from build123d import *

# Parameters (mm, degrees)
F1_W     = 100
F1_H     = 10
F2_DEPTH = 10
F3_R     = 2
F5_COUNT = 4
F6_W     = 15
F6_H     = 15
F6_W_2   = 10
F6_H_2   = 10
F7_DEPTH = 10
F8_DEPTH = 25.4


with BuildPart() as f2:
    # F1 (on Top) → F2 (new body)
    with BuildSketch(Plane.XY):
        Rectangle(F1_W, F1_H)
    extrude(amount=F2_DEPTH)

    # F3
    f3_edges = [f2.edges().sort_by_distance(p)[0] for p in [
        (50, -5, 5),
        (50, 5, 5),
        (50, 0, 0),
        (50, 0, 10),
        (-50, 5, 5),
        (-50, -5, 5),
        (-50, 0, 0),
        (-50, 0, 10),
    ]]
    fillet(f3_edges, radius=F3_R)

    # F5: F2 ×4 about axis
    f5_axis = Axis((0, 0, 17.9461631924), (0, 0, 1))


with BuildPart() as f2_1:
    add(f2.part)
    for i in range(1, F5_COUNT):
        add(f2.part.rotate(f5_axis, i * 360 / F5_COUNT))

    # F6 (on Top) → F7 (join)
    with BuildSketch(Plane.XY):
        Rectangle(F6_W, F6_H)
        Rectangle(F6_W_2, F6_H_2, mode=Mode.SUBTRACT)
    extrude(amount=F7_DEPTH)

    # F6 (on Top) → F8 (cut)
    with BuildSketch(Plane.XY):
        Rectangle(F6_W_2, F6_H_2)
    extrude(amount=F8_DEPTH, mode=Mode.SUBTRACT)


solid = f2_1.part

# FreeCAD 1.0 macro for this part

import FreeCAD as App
import Part
import Sketcher
Q = App.Units.Quantity


def edges_at(feature, points):
    """Names of the edges that pass closest to the given points."""
    edges = feature.Shape.Edges
    near = lambda p: min(range(len(edges)), key=lambda i: edges[i].distToShape(Part.Vertex(*p))[0])
    return sorted({f"Edge{near(p) + 1}" for p in points})


def add_polygon(sketch, points):
    """Adds a closed chain of lines whose ends are joined by coincident constraints."""
    first, n = sketch.GeometryCount, len(points)
    for a, b in zip(points, points[1:] + points[:1]):
        sketch.addGeometry(Part.LineSegment(App.Vector(*a, 0), App.Vector(*b, 0)), False)
    for i in range(n):
        sketch.addConstraint(Sketcher.Constraint("Coincident", first + i, 2, first + (i + 1) % n, 1))

doc = App.newDocument("Part")
body = doc.addObject("PartDesign::Body", "Body")

# Sketch on XY plane
sketch1 = body.newObject("Sketcher::SketchObject", "Sketch")
sketch1.AttachmentSupport = (doc.getObject("XY_Plane"), [""])
sketch1.MapMode = "FlatFace"
add_polygon(sketch1, [(-50, 5), (-50, -5), (50, -5), (50, 5)])  # lines 0-3
sketch1.addConstraint(Sketcher.Constraint("Vertical", 0))
sketch1.addConstraint(Sketcher.Constraint("Horizontal", 1))
sketch1.addConstraint(Sketcher.Constraint("Vertical", 2))
sketch1.addConstraint(Sketcher.Constraint("Horizontal", 3))
sketch1.addConstraint(Sketcher.Constraint("Symmetric", 0, 2, 2, 2, -1, 1))
sketch1.addConstraint(Sketcher.Constraint("DistanceX", 1, 1, 1, 2, Q("100 mm")))
sketch1.addConstraint(Sketcher.Constraint("DistanceY", 0, 2, 0, 1, Q("10 mm")))
pad1 = body.newObject("PartDesign::Pad", "Pad")
pad1.Profile = sketch1
pad1.Length = 10
doc.recompute()

fillet = body.newObject("PartDesign::Fillet", "Fillet")
fillet.Base = (pad1, edges_at(pad1, [
    (50, -5, 5),
    (50, 5, 5),
    (50, 0, 0),
    (50, 0, 10),
    (-50, 5, 5),
    (-50, -5, 5),
    (-50, 0, 0),
    (-50, 0, 10),
]))
fillet.Radius = 2
body2 = doc.addObject("PartDesign::Body", "Body001")
doc.recompute()

body2.BaseFeature = body
doc.recompute()

body3 = doc.addObject("PartDesign::Body", "Body002")
body3.BaseFeature = body
body3.Placement = App.Placement(App.Vector(0, 0, 0), App.Rotation(App.Vector(0, 0, 1), 90))
boolean = body2.newObject("PartDesign::Boolean", "Boolean")
boolean.Type = "Fuse"
boolean.addObjects([body3])
doc.recompute()

body4 = doc.addObject("PartDesign::Body", "Body003")
body4.BaseFeature = body
body4.Placement = App.Placement(App.Vector(0, 0, 0), App.Rotation(App.Vector(0, 0, 1), 180))
boolean2 = body2.newObject("PartDesign::Boolean", "Boolean001")
boolean2.Type = "Fuse"
boolean2.addObjects([body4])
doc.recompute()

body.Placement = App.Placement(App.Vector(0, 0, 0), App.Rotation(App.Vector(0, 0, 1), 270))
boolean3 = body2.newObject("PartDesign::Boolean", "Boolean002")
boolean3.Type = "Fuse"
boolean3.addObjects([body])

# Sketch on XY plane
sketch2 = body2.newObject("Sketcher::SketchObject", "Sketch001")
sketch2.AttachmentSupport = (doc.getObject("XY_Plane001"), [""])
sketch2.MapMode = "FlatFace"
add_polygon(sketch2, [(-8, 8), (-8, -8), (8, -8), (8, 8)])  # lines 0-3
add_polygon(sketch2, [(5, -5), (-5, -5), (-5, 5), (5, 5)])  # lines 4-7
sketch2.addConstraint(Sketcher.Constraint("Vertical", 0))
sketch2.addConstraint(Sketcher.Constraint("Horizontal", 1))
sketch2.addConstraint(Sketcher.Constraint("Vertical", 2))
sketch2.addConstraint(Sketcher.Constraint("Horizontal", 3))
sketch2.addConstraint(Sketcher.Constraint("Horizontal", 4))
sketch2.addConstraint(Sketcher.Constraint("Vertical", 5))
sketch2.addConstraint(Sketcher.Constraint("Horizontal", 6))
sketch2.addConstraint(Sketcher.Constraint("Vertical", 7))
sketch2.addConstraint(Sketcher.Constraint("Symmetric", 0, 2, 2, 2, -1, 1))
sketch2.addConstraint(Sketcher.Constraint("Symmetric", 4, 2, 6, 2, -1, 1))
sketch2.addConstraint(Sketcher.Constraint("Equal", 3, 0))
sketch2.addConstraint(Sketcher.Constraint("Equal", 6, 5))
sketch2.addConstraint(Sketcher.Constraint("DistanceX", 1, 1, 1, 2, Q("15 mm")))
sketch2.addConstraint(Sketcher.Constraint("DistanceX", 4, 2, 4, 1, Q("10 mm")))
pad2 = body2.newObject("PartDesign::Pad", "Pad001")
pad2.Profile = sketch2
pad2.Length = 10

# Sketch on XY plane
sketch3 = body2.newObject("Sketcher::SketchObject", "Sketch002")
sketch3.AttachmentSupport = (doc.getObject("XY_Plane001"), [""])
sketch3.MapMode = "FlatFace"
add_polygon(sketch3, [(-5, 5), (-5, -5), (5, -5), (5, 5)])  # lines 0-3
sketch3.addConstraint(Sketcher.Constraint("Vertical", 0))
sketch3.addConstraint(Sketcher.Constraint("Horizontal", 1))
sketch3.addConstraint(Sketcher.Constraint("Vertical", 2))
sketch3.addConstraint(Sketcher.Constraint("Horizontal", 3))
sketch3.addConstraint(Sketcher.Constraint("Symmetric", 0, 2, 2, 2, -1, 1))
sketch3.addConstraint(Sketcher.Constraint("Equal", 3, 0))
sketch3.addConstraint(Sketcher.Constraint("DistanceX", 1, 1, 1, 2, Q("10 mm")))
pocket1 = body2.newObject("PartDesign::Pocket", "Pocket")
pocket1.Profile = sketch3
pocket1.Length = 25.4
pocket1.Reversed = True

doc.recompute()
